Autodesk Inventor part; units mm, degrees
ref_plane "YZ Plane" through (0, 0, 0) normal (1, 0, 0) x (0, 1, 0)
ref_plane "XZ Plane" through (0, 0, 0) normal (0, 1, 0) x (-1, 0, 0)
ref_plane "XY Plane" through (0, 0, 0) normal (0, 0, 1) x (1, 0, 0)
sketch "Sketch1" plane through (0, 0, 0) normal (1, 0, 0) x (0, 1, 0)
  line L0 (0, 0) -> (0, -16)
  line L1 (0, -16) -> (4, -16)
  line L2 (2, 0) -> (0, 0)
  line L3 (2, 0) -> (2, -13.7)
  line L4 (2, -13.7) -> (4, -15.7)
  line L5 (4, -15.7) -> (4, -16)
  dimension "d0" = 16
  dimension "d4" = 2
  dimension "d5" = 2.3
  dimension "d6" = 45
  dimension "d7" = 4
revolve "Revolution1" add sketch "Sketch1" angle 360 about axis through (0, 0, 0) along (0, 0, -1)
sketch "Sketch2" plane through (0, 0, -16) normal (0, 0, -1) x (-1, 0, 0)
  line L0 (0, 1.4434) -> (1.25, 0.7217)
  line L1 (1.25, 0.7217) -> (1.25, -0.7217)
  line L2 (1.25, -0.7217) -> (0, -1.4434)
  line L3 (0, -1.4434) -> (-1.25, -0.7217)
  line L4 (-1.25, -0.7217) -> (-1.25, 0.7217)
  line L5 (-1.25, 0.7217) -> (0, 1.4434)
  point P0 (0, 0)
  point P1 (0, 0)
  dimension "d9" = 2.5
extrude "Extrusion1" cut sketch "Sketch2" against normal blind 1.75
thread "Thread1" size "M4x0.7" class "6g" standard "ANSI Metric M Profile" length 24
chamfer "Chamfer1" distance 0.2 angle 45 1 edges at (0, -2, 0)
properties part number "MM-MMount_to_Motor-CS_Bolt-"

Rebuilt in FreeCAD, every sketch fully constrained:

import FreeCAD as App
import Part
import Sketcher

V = App.Vector
Q = App.Units.Quantity


def edges_at(feature, points):
    """Names of the edges that pass closest to the given points."""
    edges = feature.Shape.Edges
    near = lambda p: min(range(len(edges)), key=lambda i: edges[i].distToShape(Part.Vertex(*p))[0])
    return sorted({f"Edge{near(p) + 1}" for p in points})

doc = App.newDocument("Part")
params = doc.addObject("Spreadsheet::Sheet", "Params")
for row, (alias, value) in enumerate([
    ("sketch1_width", "2 mm"),
    ("sketch1_width2", "4 mm"),
    ("sketch1_height", "16 mm"),
    ("revolution_angle", "360 deg"),
    ("pocket1_length", "1.75 mm"),
    ("chamfer_size", "0.2 mm"),
], start=1):
    params.set(f"A{row}", alias)
    params.set(f"B{row}", "=" + value)
    params.setAlias(f"B{row}", alias)

body = doc.addObject("PartDesign::Body", "Body")

# Sketch on YZ plane
sketch1 = body.newObject("Sketcher::SketchObject", "Sketch")
sketch1.AttachmentSupport = (doc.getObject("YZ_Plane"), [""])
sketch1.MapMode = "FlatFace"
sketch1.addGeometry([
    Part.LineSegment(V(2, 0, 0), V(0, 0, 0)),  # 0
    Part.LineSegment(V(0, 0, 0), V(0, -16, 0)),  # 1
    Part.LineSegment(V(0, -16, 0), V(4, -16, 0)),  # 2
    Part.LineSegment(V(4, -16, 0), V(4, -15.7, 0)),  # 3
    Part.LineSegment(V(4, -15.7, 0), V(2, -13.7, 0)),  # 4
    Part.LineSegment(V(2, -13.7, 0), V(2, 0, 0)),  # 5
], False)
sketch1.addConstraint([
    Sketcher.Constraint("Coincident", 0, 2, 1, 1),
    Sketcher.Constraint("Coincident", 1, 2, 2, 1),
    Sketcher.Constraint("Coincident", 2, 2, 3, 1),
    Sketcher.Constraint("Coincident", 3, 2, 4, 1),
    Sketcher.Constraint("Coincident", 4, 2, 5, 1),
    Sketcher.Constraint("Coincident", 5, 2, 0, 1),
    Sketcher.Constraint("Horizontal", 0),
    Sketcher.Constraint("Vertical", 1),
    Sketcher.Constraint("Horizontal", 2),
    Sketcher.Constraint("Vertical", 3),
    Sketcher.Constraint("Vertical", 5),
    Sketcher.Constraint("Coincident", 0, 2, -1, 1),
    Sketcher.Constraint("DistanceX", 0, 2, 0, 1, 2.0),
    Sketcher.Constraint("DistanceX", 2, 1, 2, 2, 4.0),
    Sketcher.Constraint("DistanceY", 1, 2, 1, 1, 16.0),
    Sketcher.Constraint("DistanceY", 3, 2, 4, 2, 2.0),
    Sketcher.Constraint("DistanceY", 1, 2, 4, 2, 2.3),
])
sketch1.setExpression("Constraints[12]", "Params.sketch1_width")
sketch1.setExpression("Constraints[13]", "Params.sketch1_width2")
sketch1.setExpression("Constraints[14]", "Params.sketch1_height")
revolution = body.newObject("PartDesign::Revolution", "Revolution")
revolution.Profile = sketch1
revolution.ReferenceAxis = (sketch1, ["V_Axis"])
revolution.setExpression("Angle", "Params.revolution_angle")

# Sketch on XY plane
sketch2 = body.newObject("Sketcher::SketchObject", "Sketch001")
sketch2.AttachmentSupport = (doc.getObject("XY_Plane"), [""])
sketch2.MapMode = "FlatFace"
sketch2.AttachmentOffset = App.Placement(V(0, 0, -16), App.Rotation())
sketch2.addGeometry([
    Part.LineSegment(V(-1.2, 0.7, 0), V(0, 1.4, 0)),  # 0
    Part.LineSegment(V(0, 1.4, 0), V(1.2, 0.7, 0)),  # 1
    Part.LineSegment(V(1.2, 0.7, 0), V(1.2, -0.7, 0)),  # 2
    Part.LineSegment(V(1.2, -0.7, 0), V(0, -1.4, 0)),  # 3
    Part.LineSegment(V(0, -1.4, 0), V(-1.2, -0.7, 0)),  # 4
    Part.LineSegment(V(-1.2, -0.7, 0), V(-1.2, 0.7, 0)),  # 5
], False)
sketch2.addConstraint([
    Sketcher.Constraint("Coincident", 0, 2, 1, 1),
    Sketcher.Constraint("Coincident", 1, 2, 2, 1),
    Sketcher.Constraint("Coincident", 2, 2, 3, 1),
    Sketcher.Constraint("Coincident", 3, 2, 4, 1),
    Sketcher.Constraint("Coincident", 4, 2, 5, 1),
    Sketcher.Constraint("Coincident", 5, 2, 0, 1),
    Sketcher.Constraint("Vertical", 2),
    Sketcher.Constraint("Vertical", 5),
    Sketcher.Constraint("Symmetric", 0, 2, 3, 2, -1, 1),
    Sketcher.Constraint("Symmetric", 1, 2, 4, 2, -1, 1),
    Sketcher.Constraint("PointOnObject", 0, 2, -2),
    Sketcher.Constraint("Parallel", 0, 3),
    Sketcher.Constraint("Horizontal", 2, 2, 4, 2),
    Sketcher.Constraint("DistanceX", 4, 2, 2, 2, 2.5),
    Sketcher.Constraint("Angle", 0, Q("30.0004 deg")),
    Sketcher.Constraint("DistanceY", 2, 2, 2, 1, 1.4434),
])
pocket1 = body.newObject("PartDesign::Pocket", "Pocket")
pocket1.Profile = sketch2
pocket1.setExpression("Length", "Params.pocket1_length")
pocket1.Reversed = True
doc.recompute()

chamfer = body.newObject("PartDesign::Chamfer", "Chamfer")
chamfer.Base = (pocket1, edges_at(pocket1, [(0, -2, 0)]))
chamfer.setExpression("Size", "Params.chamfer_size")

doc.recompute()
